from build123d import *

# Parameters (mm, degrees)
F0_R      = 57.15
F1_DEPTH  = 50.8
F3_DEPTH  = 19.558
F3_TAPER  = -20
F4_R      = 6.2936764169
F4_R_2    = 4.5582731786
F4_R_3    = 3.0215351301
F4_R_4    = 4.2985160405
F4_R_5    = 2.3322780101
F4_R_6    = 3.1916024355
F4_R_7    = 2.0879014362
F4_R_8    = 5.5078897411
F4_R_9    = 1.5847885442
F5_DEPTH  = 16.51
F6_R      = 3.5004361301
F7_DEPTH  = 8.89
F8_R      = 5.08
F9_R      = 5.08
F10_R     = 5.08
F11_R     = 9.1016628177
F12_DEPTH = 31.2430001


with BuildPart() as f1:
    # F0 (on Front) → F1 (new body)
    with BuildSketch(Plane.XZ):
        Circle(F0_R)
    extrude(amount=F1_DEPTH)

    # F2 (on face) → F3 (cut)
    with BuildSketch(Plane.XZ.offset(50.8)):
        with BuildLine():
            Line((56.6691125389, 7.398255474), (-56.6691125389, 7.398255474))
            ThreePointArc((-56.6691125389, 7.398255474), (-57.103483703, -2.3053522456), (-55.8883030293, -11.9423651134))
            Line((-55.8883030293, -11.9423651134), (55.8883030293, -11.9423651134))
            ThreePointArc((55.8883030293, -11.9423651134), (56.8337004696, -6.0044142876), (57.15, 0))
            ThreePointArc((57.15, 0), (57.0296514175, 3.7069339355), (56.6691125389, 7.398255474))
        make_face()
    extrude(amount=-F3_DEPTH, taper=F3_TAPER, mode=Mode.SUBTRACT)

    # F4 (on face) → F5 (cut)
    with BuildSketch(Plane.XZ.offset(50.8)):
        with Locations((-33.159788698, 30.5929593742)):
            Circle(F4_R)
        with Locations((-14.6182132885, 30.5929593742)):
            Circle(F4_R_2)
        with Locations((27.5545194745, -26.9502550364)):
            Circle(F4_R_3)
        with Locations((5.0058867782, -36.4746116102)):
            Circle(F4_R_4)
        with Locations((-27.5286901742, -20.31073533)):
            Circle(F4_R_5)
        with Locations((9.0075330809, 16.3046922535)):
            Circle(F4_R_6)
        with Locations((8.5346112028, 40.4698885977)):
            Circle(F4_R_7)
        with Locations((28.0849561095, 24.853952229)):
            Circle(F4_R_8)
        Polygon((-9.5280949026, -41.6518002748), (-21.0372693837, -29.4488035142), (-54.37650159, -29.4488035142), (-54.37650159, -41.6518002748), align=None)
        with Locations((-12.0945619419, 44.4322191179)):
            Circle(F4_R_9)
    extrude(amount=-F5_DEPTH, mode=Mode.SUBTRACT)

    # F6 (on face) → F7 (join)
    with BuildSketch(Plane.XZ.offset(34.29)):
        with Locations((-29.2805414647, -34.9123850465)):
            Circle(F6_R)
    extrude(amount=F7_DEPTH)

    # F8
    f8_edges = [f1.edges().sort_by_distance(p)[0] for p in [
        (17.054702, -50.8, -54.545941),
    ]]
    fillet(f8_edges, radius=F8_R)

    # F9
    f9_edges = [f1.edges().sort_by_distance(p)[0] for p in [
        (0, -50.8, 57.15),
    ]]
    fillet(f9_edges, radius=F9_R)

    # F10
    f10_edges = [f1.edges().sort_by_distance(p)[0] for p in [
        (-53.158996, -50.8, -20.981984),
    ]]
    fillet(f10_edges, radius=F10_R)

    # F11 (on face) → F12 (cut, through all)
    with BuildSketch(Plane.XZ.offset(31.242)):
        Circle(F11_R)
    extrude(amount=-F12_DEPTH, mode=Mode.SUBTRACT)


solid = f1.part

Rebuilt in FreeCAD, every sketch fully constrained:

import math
import FreeCAD as App
import Part
import Sketcher
from FreeCAD import Vector
Q = App.Units.Quantity


def edges_at(feature, points):
    """Names of the edges that pass closest to the given points."""
    edges = feature.Shape.Edges
    near = lambda p: min(range(len(edges)), key=lambda i: edges[i].distToShape(Part.Vertex(*p))[0])
    return sorted({f"Edge{near(p) + 1}" for p in points})


def add_polygon(sketch, points):
    """Adds a closed chain of lines whose ends are joined by coincident constraints."""
    first, n = sketch.GeometryCount, len(points)
    for a, b in zip(points, points[1:] + points[:1]):
        sketch.addGeometry(Part.LineSegment(App.Vector(*a, 0), App.Vector(*b, 0)), False)
    for i in range(n):
        sketch.addConstraint(Sketcher.Constraint("Coincident", first + i, 2, first + (i + 1) % n, 1))

doc = App.newDocument("Part")
body = doc.addObject("PartDesign::Body", "Body")

# Sketch on XZ plane
sketch1 = body.newObject("Sketcher::SketchObject", "Sketch")
sketch1.AttachmentSupport = (doc.getObject("XZ_Plane"), [""])
sketch1.MapMode = "FlatFace"
sketch1.addGeometry(Part.Circle(Vector(0, 0, 0), Vector(0, 0, 1), 57), False)
sketch1.addConstraint(Sketcher.Constraint("Coincident", 0, 3, -1, 1))
sketch1.addConstraint(Sketcher.Constraint("Diameter", 0, Q("4.5 in")))
pad1 = body.newObject("PartDesign::Pad", "Pad")
pad1.Profile = sketch1
pad1.Length = Q("2 in")

# Sketch on XZ plane
sketch2 = body.newObject("Sketcher::SketchObject", "Sketch001")
sketch2.AttachmentSupport = (doc.getObject("XZ_Plane"), [""])
sketch2.MapMode = "FlatFace"
sketch2.AttachmentOffset = App.Placement(Vector(0, 0, 2 * 25.4), App.Rotation())
sketch2.addGeometry(Part.LineSegment(Vector(57, 7, 0), Vector(-57, 7, 0)), False)
sketch2.addGeometry(Part.ArcOfCircle(Part.Circle(Vector(0, 0, 0), Vector(0, 0, 1), 57), math.radians(172.56), math.radians(192.06)), False)
sketch2.addGeometry(Part.LineSegment(Vector(-56, -12, 0), Vector(56, -12, 0)), False)
sketch2.addGeometry(Part.ArcOfCircle(Part.Circle(Vector(0, 0, 0), Vector(0, 0, 1), 57), math.radians(-12.06), math.radians(0)), False)
sketch2.addGeometry(Part.ArcOfCircle(Part.Circle(Vector(0, 0, 0), Vector(0, 0, 1), 57), math.radians(0), math.radians(7.44)), False)
sketch2.addConstraint(Sketcher.Constraint("Coincident", 0, 2, 1, 1))
sketch2.addConstraint(Sketcher.Constraint("Coincident", 1, 2, 2, 1))
sketch2.addConstraint(Sketcher.Constraint("Coincident", 2, 2, 3, 1))
sketch2.addConstraint(Sketcher.Constraint("Tangent", 3, 2, 4, 1))
sketch2.addConstraint(Sketcher.Constraint("Coincident", 4, 2, 0, 1))
sketch2.addConstraint(Sketcher.Constraint("Horizontal", 0))
sketch2.addConstraint(Sketcher.Constraint("Horizontal", 2))
sketch2.addConstraint(Sketcher.Constraint("Coincident", 1, 3, -1, 1))
sketch2.addConstraint(Sketcher.Constraint("Coincident", 3, 3, -1, 1))
sketch2.addConstraint(Sketcher.Constraint("Equal", 1, 3))
sketch2.addConstraint(Sketcher.Constraint("Equal", 3, 4))
sketch2.addConstraint(Sketcher.Constraint("PointOnObject", 3, 2, -1))
sketch2.addConstraint(Sketcher.Constraint("Radius", 1, Q("2.25 in")))
sketch2.addConstraint(Sketcher.Constraint("DistanceX", 0, 2, 0, 1, Q("113.338225 mm")))
sketch2.addConstraint(Sketcher.Constraint("DistanceX", 2, 1, 2, 2, Q("111.776606 mm")))
pocket1 = body.newObject("PartDesign::Pocket", "Pocket")
pocket1.Profile = sketch2
pocket1.Length = Q("0.77 in")
pocket1.TaperAngle = 20

# Sketch on XZ plane
sketch3 = body.newObject("Sketcher::SketchObject", "Sketch002")
sketch3.AttachmentSupport = (doc.getObject("XZ_Plane"), [""])
sketch3.MapMode = "FlatFace"
sketch3.AttachmentOffset = App.Placement(Vector(0, 0, 2 * 25.4), App.Rotation())
sketch3.addGeometry(Part.Circle(Vector(-33.2, 30.6, 0), Vector(0, 0, 1), 6.3), False)  # 0
sketch3.addGeometry(Part.Circle(Vector(-14.6, 30.6, 0), Vector(0, 0, 1), 4.6), False)  # 1
sketch3.addGeometry(Part.Circle(Vector(27.6, -27, 0), Vector(0, 0, 1), 3), False)  # 2
sketch3.addGeometry(Part.Circle(Vector(5, -36.5, 0), Vector(0, 0, 1), 4.3), False)  # 3
sketch3.addGeometry(Part.Circle(Vector(-27.5, -20.3, 0), Vector(0, 0, 1), 2.3), False)  # 4
sketch3.addGeometry(Part.Circle(Vector(9, 16.3, 0), Vector(0, 0, 1), 3.2), False)  # 5
sketch3.addGeometry(Part.Circle(Vector(8.5, 40.5, 0), Vector(0, 0, 1), 2.1), False)  # 6
sketch3.addGeometry(Part.Circle(Vector(28.1, 24.9, 0), Vector(0, 0, 1), 5.5), False)  # 7
add_polygon(sketch3, [(-9.5, -41.7), (-21, -29.4), (-54.4, -29.4), (-54.4, -41.7)])  # lines 8-11
sketch3.addGeometry(Part.Circle(Vector(-12.1, 44.4, 0), Vector(0, 0, 1), 1.6), False)  # 12
sketch3.addConstraint(Sketcher.Constraint("Horizontal", 9))
sketch3.addConstraint(Sketcher.Constraint("Vertical", 10))
sketch3.addConstraint(Sketcher.Constraint("Horizontal", 11))
sketch3.addConstraint(Sketcher.Constraint("Horizontal", 0, 3, 1, 3))
sketch3.addConstraint(Sketcher.Constraint("Diameter", 2, Q("6.04307 mm")))
sketch3.addConstraint(Sketcher.Constraint("Diameter", 7, Q("11.015779 mm")))
sketch3.addConstraint(Sketcher.Constraint("Diameter", 0, Q("12.587353 mm")))
sketch3.addConstraint(Sketcher.Constraint("Diameter", 1, Q("9.116546 mm")))
sketch3.addConstraint(Sketcher.Constraint("Diameter", 3, Q("8.597032 mm")))
sketch3.addConstraint(Sketcher.Constraint("Diameter", 4, Q("4.664556 mm")))
sketch3.addConstraint(Sketcher.Constraint("Diameter", 5, Q("6.383205 mm")))
sketch3.addConstraint(Sketcher.Constraint("Diameter", 6, Q("4.175803 mm")))
sketch3.addConstraint(Sketcher.Constraint("Diameter", 12, Q("3.169577 mm")))
sketch3.addConstraint(Sketcher.Constraint("DistanceY", -1, 1, 12, 3, Q("1.7493 in")))
sketch3.addConstraint(Sketcher.Constraint("DistanceX", 9, 2, -1, 1, Q("54.376502 mm")))
sketch3.addConstraint(Sketcher.Constraint("DistanceY", 10, 2, -1, 1, Q("41.6518 mm")))
sketch3.addConstraint(Sketcher.Constraint("DistanceX", 1, 3, 3, 3, Q("19.6241 mm")))
sketch3.addConstraint(Sketcher.Constraint("DistanceX", 0, 3, 4, 3, Q("5.631099 mm")))
sketch3.addConstraint(Sketcher.Constraint("DistanceX", 0, 3, 6, 3, Q("41.6944 mm")))
sketch3.addConstraint(Sketcher.Constraint("DistanceX", 9, 2, 9, 1, Q("33.339232 mm")))
sketch3.addConstraint(Sketcher.Constraint("DistanceX", 11, 1, 11, 2, Q("44.848407 mm")))
sketch3.addConstraint(Sketcher.Constraint("DistanceY", 10, 2, 10, 1, Q("12.202997 mm")))
sketch3.addConstraint(Sketcher.Constraint("DistanceX", 0, 3, -1, 1, Q("33.159789 mm")))
sketch3.addConstraint(Sketcher.Constraint("DistanceY", -1, 1, 0, 3, Q("30.592959 mm")))
sketch3.addConstraint(Sketcher.Constraint("DistanceX", -1, 1, 2, 3, Q("27.554519 mm")))
sketch3.addConstraint(Sketcher.Constraint("DistanceY", 3, 3, -1, 1, Q("36.474612 mm")))
sketch3.addConstraint(Sketcher.Constraint("DistanceY", -1, 1, 6, 3, Q("40.469889 mm")))
sketch3.addConstraint(Sketcher.Constraint("DistanceX", 12, 3, -1, 1, Q("12.094562 mm")))
sketch3.addConstraint(Sketcher.Constraint("DistanceY", 2, 3, 4, 3, Q("6.63952 mm")))
sketch3.addConstraint(Sketcher.Constraint("DistanceX", 0, 3, 5, 3, Q("42.167322 mm")))
sketch3.addConstraint(Sketcher.Constraint("DistanceY", 5, 3, 7, 3, Q("8.54926 mm")))
sketch3.addConstraint(Sketcher.Constraint("DistanceX", 1, 3, 7, 3, Q("42.703169 mm")))
sketch3.addConstraint(Sketcher.Constraint("DistanceX", 1, 3, 12, 3, Q("2.523651 mm")))
sketch3.addConstraint(Sketcher.Constraint("DistanceY", 8, 2, 4, 3, Q("9.138068 mm")))
sketch3.addConstraint(Sketcher.Constraint("DistanceY", -1, 1, 5, 3, Q("16.304692 mm")))
pocket2 = body.newObject("PartDesign::Pocket", "Pocket001")
pocket2.Profile = sketch3
pocket2.Length = Q("0.65 in")

# Sketch on XZ plane
sketch4 = body.newObject("Sketcher::SketchObject", "Sketch003")
sketch4.AttachmentSupport = (doc.getObject("XZ_Plane"), [""])
sketch4.MapMode = "FlatFace"
sketch4.AttachmentOffset = App.Placement(Vector(0, 0, 1.35 * 25.4), App.Rotation())
sketch4.addGeometry(Part.Circle(Vector(-29.3, -34.9, 0), Vector(0, 0, 1), 3.5), False)
sketch4.addConstraint(Sketcher.Constraint("Diameter", 0, Q("7.000872 mm")))
sketch4.addConstraint(Sketcher.Constraint("DistanceX", 0, 3, -1, 1, Q("29.280541 mm")))
sketch4.addConstraint(Sketcher.Constraint("DistanceY", 0, 3, -1, 1, Q("34.912385 mm")))
pad2 = body.newObject("PartDesign::Pad", "Pad001")
pad2.Profile = sketch4
pad2.Length = Q("0.35 in")
doc.recompute()

fillet = body.newObject("PartDesign::Fillet", "Fillet")
fillet.Base = (pad2, edges_at(pad2, [(17.055, -50.8, -54.546)]))
fillet.Radius = Q("0.2 in")
doc.recompute()

fillet2 = body.newObject("PartDesign::Fillet", "Fillet001")
fillet2.Base = (fillet, edges_at(fillet, [(0, -50.8, 57.15)]))
fillet2.Radius = Q("0.2 in")
doc.recompute()

fillet3 = body.newObject("PartDesign::Fillet", "Fillet002")
fillet3.Base = (fillet2, edges_at(fillet2, [(-53.159, -50.8, -20.982)]))
fillet3.Radius = Q("0.2 in")

# Sketch on XZ plane
sketch5 = body.newObject("Sketcher::SketchObject", "Sketch004")
sketch5.AttachmentSupport = (doc.getObject("XZ_Plane"), [""])
sketch5.MapMode = "FlatFace"
sketch5.AttachmentOffset = App.Placement(Vector(0, 0, 1.23 * 25.4), App.Rotation())
sketch5.addGeometry(Part.Circle(Vector(0, 0, 0), Vector(0, 0, 1), 9), False)
sketch5.addConstraint(Sketcher.Constraint("Coincident", 0, 3, -1, 1))
sketch5.addConstraint(Sketcher.Constraint("Diameter", 0, Q("18.203326 mm")))
pocket3 = body.newObject("PartDesign::Pocket", "Pocket002")
pocket3.Profile = sketch5
pocket3.Type = "ThroughAll"

doc.recompute()
